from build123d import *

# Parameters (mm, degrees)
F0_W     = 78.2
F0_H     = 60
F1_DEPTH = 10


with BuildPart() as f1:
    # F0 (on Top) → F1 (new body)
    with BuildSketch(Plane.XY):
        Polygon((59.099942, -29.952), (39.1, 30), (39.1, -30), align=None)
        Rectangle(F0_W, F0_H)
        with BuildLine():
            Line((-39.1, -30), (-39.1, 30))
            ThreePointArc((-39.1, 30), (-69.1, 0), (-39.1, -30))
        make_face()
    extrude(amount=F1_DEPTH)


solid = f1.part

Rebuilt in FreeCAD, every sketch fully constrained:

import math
import FreeCAD as App
import Part
import Sketcher

V = App.Vector

doc = App.newDocument("Part")
body = doc.addObject("PartDesign::Body", "Body")

sketch1 = doc.addObject("Sketcher::SketchObject", "Sketch")
body.addObject(sketch1)
sketch1.AttachmentSupport = (doc.XY_Plane, [""])
sketch1.MapMode = "FlatFace"
sketch1.addGeometry([
    Part.LineSegment(V(59, -30, 0), V(39, 30, 0)),
    Part.LineSegment(V(39, 30, 0), V(-39, 30, 0)),
    Part.ArcOfCircle(Part.Circle(V(-39, 0, 0), V(0, 0, 1), 30), math.radians(90), math.radians(270)),
    Part.LineSegment(V(-39, -30, 0), V(39, -30, 0)),
    Part.LineSegment(V(39, -30, 0), V(59, -30, 0)),
], False)
sketch1.addConstraint([
    Sketcher.Constraint("Coincident", 0, 2, 1, 1),
    Sketcher.Constraint("Tangent", 1, 2, 2, 1),
    Sketcher.Constraint("Tangent", 2, 2, 3, 1),
    Sketcher.Constraint("Coincident", 3, 2, 4, 1),
    Sketcher.Constraint("Coincident", 4, 2, 0, 1),
    Sketcher.Constraint("Horizontal", 1),
    Sketcher.Constraint("Horizontal", 3),
    Sketcher.Constraint("Symmetric", 0, 2, 2, 2, -1, 1),
    Sketcher.Constraint("Vertical", 0, 2, 3, 2),
    Sketcher.Constraint("Radius", 2, 30.0),
    Sketcher.Constraint("Distance", 4, 20.0),
    Sketcher.Constraint("DistanceX", 1, 2, 1, 1, 78.2),
    Sketcher.Constraint("Distance", 0, 63.2),
])
pad1 = doc.addObject("PartDesign::Pad", "Pad")
body.addObject(pad1)
pad1.Profile = sketch1
pad1.Length = 10

doc.recompute()
